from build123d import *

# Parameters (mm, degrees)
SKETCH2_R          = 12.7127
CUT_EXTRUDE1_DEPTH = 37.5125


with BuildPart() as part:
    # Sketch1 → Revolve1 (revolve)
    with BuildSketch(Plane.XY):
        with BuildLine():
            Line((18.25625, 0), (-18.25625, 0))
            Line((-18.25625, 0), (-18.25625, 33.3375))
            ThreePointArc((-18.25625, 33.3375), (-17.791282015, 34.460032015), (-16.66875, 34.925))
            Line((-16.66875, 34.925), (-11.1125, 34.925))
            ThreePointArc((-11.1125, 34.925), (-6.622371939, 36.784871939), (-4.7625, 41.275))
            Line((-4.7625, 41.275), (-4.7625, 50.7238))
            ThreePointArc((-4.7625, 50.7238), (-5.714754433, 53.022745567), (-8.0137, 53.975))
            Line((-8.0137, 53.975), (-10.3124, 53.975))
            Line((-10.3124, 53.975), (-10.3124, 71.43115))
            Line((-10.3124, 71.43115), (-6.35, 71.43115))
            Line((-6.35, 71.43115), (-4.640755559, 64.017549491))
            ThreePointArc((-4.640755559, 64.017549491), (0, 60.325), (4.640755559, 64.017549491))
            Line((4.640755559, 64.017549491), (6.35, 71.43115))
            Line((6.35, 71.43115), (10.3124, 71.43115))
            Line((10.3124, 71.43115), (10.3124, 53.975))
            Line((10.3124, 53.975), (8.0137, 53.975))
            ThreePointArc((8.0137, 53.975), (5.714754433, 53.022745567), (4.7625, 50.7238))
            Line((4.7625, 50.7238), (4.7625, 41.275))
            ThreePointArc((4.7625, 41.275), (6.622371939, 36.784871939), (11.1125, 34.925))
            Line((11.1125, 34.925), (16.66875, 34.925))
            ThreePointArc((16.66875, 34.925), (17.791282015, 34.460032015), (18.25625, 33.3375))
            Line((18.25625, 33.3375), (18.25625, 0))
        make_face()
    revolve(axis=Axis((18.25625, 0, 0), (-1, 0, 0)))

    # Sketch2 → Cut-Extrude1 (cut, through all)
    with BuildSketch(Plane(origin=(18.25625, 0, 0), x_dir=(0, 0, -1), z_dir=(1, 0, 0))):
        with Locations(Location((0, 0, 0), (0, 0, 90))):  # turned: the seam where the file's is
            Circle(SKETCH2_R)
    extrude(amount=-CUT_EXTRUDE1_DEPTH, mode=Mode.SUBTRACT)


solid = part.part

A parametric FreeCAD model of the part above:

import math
import FreeCAD as App
import Part
import Sketcher
Q = App.Units.Quantity

doc = App.newDocument("Part")
body = doc.addObject("PartDesign::Body", "Body")

# Sketch on XY plane
sketch1 = body.newObject("Sketcher::SketchObject", "Sketch")
sketch1.AttachmentSupport = (doc.getObject("XY_Plane"), [""])
sketch1.MapMode = "FlatFace"
sketch1.addGeometry(Part.LineSegment(App.Vector(-18.3, 0, 0), App.Vector(18.3, 0, 0)), False)
sketch1.addGeometry(Part.LineSegment(App.Vector(18.3, 0, 0), App.Vector(18.3, 33.3, 0)), False)
sketch1.addGeometry(Part.ArcOfCircle(Part.Circle(App.Vector(16.7, 33.3, 0), App.Vector(0, 0, 1), 1.6), math.radians(0), math.radians(90)), False)
sketch1.addGeometry(Part.LineSegment(App.Vector(16.7, 34.9, 0), App.Vector(11.1, 34.9, 0)), False)
sketch1.addGeometry(Part.ArcOfCircle(Part.Circle(App.Vector(11.1, 41.3, 0), App.Vector(0, 0, 1), 6.3), math.radians(180), math.radians(270)), False)
sketch1.addGeometry(Part.LineSegment(App.Vector(4.8, 41.3, 0), App.Vector(4.8, 50.7, 0)), False)
sketch1.addGeometry(Part.ArcOfCircle(Part.Circle(App.Vector(8, 50.7, 0), App.Vector(0, 0, 1), 3.3), math.radians(90), math.radians(180)), False)
sketch1.addGeometry(Part.LineSegment(App.Vector(8, 54, 0), App.Vector(10.3, 54, 0)), False)
sketch1.addGeometry(Part.LineSegment(App.Vector(10.3, 54, 0), App.Vector(10.3, 71.4, 0)), False)
sketch1.addGeometry(Part.LineSegment(App.Vector(10.3, 71.4, 0), App.Vector(6.3, 71.4, 0)), False)
sketch1.addGeometry(Part.LineSegment(App.Vector(6.3, 71.4, 0), App.Vector(4.6, 64, 0)), False)
sketch1.addGeometry(Part.ArcOfCircle(Part.Circle(App.Vector(0, 65.1, 0), App.Vector(0, 0, 1), 4.8), math.radians(-167), math.radians(-13)), False)
sketch1.addGeometry(Part.LineSegment(App.Vector(-4.6, 64, 0), App.Vector(-6.3, 71.4, 0)), False)
sketch1.addGeometry(Part.LineSegment(App.Vector(-6.3, 71.4, 0), App.Vector(-10.3, 71.4, 0)), False)
sketch1.addGeometry(Part.LineSegment(App.Vector(-10.3, 71.4, 0), App.Vector(-10.3, 54, 0)), False)
sketch1.addGeometry(Part.LineSegment(App.Vector(-10.3, 54, 0), App.Vector(-8, 54, 0)), False)
sketch1.addGeometry(Part.ArcOfCircle(Part.Circle(App.Vector(-8, 50.7, 0), App.Vector(0, 0, 1), 3.3), math.radians(0), math.radians(90)), False)
sketch1.addGeometry(Part.LineSegment(App.Vector(-4.8, 50.7, 0), App.Vector(-4.8, 41.3, 0)), False)
sketch1.addGeometry(Part.ArcOfCircle(Part.Circle(App.Vector(-11.1, 41.3, 0), App.Vector(0, 0, 1), 6.3), math.radians(-90), math.radians(0)), False)
sketch1.addGeometry(Part.LineSegment(App.Vector(-11.1, 34.9, 0), App.Vector(-16.7, 34.9, 0)), False)
sketch1.addGeometry(Part.ArcOfCircle(Part.Circle(App.Vector(-16.7, 33.3, 0), App.Vector(0, 0, 1), 1.6), math.radians(90), math.radians(180)), False)
sketch1.addGeometry(Part.LineSegment(App.Vector(-18.3, 33.3, 0), App.Vector(-18.3, 0, 0)), False)
sketch1.addConstraint(Sketcher.Constraint("Coincident", 0, 2, 1, 1))
sketch1.addConstraint(Sketcher.Constraint("Tangent", 1, 2, 2, 1))
sketch1.addConstraint(Sketcher.Constraint("Tangent", 2, 2, 3, 1))
sketch1.addConstraint(Sketcher.Constraint("Tangent", 3, 2, 4, 2))
sketch1.addConstraint(Sketcher.Constraint("Tangent", 4, 1, 5, 1))
sketch1.addConstraint(Sketcher.Constraint("Tangent", 5, 2, 6, 2))
sketch1.addConstraint(Sketcher.Constraint("Tangent", 6, 1, 7, 1))
sketch1.addConstraint(Sketcher.Constraint("Coincident", 7, 2, 8, 1))
sketch1.addConstraint(Sketcher.Constraint("Coincident", 8, 2, 9, 1))
sketch1.addConstraint(Sketcher.Constraint("Coincident", 9, 2, 10, 1))
sketch1.addConstraint(Sketcher.Constraint("Tangent", 10, 2, 11, 2))
sketch1.addConstraint(Sketcher.Constraint("Tangent", 11, 1, 12, 1))
sketch1.addConstraint(Sketcher.Constraint("Coincident", 12, 2, 13, 1))
sketch1.addConstraint(Sketcher.Constraint("Coincident", 13, 2, 14, 1))
sketch1.addConstraint(Sketcher.Constraint("Coincident", 14, 2, 15, 1))
sketch1.addConstraint(Sketcher.Constraint("Tangent", 15, 2, 16, 2))
sketch1.addConstraint(Sketcher.Constraint("Tangent", 16, 1, 17, 1))
sketch1.addConstraint(Sketcher.Constraint("Tangent", 17, 2, 18, 2))
sketch1.addConstraint(Sketcher.Constraint("Tangent", 18, 1, 19, 1))
sketch1.addConstraint(Sketcher.Constraint("Tangent", 19, 2, 20, 1))
sketch1.addConstraint(Sketcher.Constraint("Tangent", 20, 2, 21, 1))
sketch1.addConstraint(Sketcher.Constraint("Coincident", 21, 2, 0, 1))
sketch1.addConstraint(Sketcher.Constraint("Horizontal", 0))
sketch1.addConstraint(Sketcher.Constraint("Vertical", 1))
sketch1.addConstraint(Sketcher.Constraint("Horizontal", 3))
sketch1.addConstraint(Sketcher.Constraint("Vertical", 5))
sketch1.addConstraint(Sketcher.Constraint("Horizontal", 7))
sketch1.addConstraint(Sketcher.Constraint("Vertical", 8))
sketch1.addConstraint(Sketcher.Constraint("Horizontal", 9))
sketch1.addConstraint(Sketcher.Constraint("Horizontal", 13))
sketch1.addConstraint(Sketcher.Constraint("Vertical", 14))
sketch1.addConstraint(Sketcher.Constraint("Horizontal", 15))
sketch1.addConstraint(Sketcher.Constraint("Vertical", 17))
sketch1.addConstraint(Sketcher.Constraint("Horizontal", 19))
sketch1.addConstraint(Sketcher.Constraint("Vertical", 21))
sketch1.addConstraint(Sketcher.Constraint("Equal", 6, 16))
sketch1.addConstraint(Sketcher.Constraint("Equal", 4, 18))
sketch1.addConstraint(Sketcher.Constraint("Equal", 2, 20))
sketch1.addConstraint(Sketcher.Constraint("Symmetric", 0, 2, 21, 2, -1, 1))
sketch1.addConstraint(Sketcher.Constraint("Symmetric", 6, 3, 16, 3, -2))
sketch1.addConstraint(Sketcher.Constraint("Symmetric", 10, 2, 11, 1, -2))
sketch1.addConstraint(Sketcher.Constraint("Symmetric", 8, 2, 13, 2, -2))
sketch1.addConstraint(Sketcher.Constraint("Horizontal", 4, 3, 18, 3))
sketch1.addConstraint(Sketcher.Constraint("Radius", 4, Q("0.25 in")))
sketch1.addConstraint(Sketcher.Constraint("Radius", 2, Q("0.0625 in")))
sketch1.addConstraint(Sketcher.Constraint("Radius", 6, Q("0.128 in")))
sketch1.addConstraint(Sketcher.Constraint("Radius", 11, Q("0.1875 in")))
sketch1.addConstraint(Sketcher.Constraint("DistanceY", 4, 3, 6, 1, Q("0.5 in")))
sketch1.addConstraint(Sketcher.Constraint("DistanceX", 12, 2, 9, 2, Q("0.5 in")))
sketch1.addConstraint(Sketcher.Constraint("DistanceX", 0, 1, 0, 2, Q("1.4375 in")))
sketch1.addConstraint(Sketcher.Constraint("DistanceX", 3, 2, 3, 1, Q("0.21875 in")))
sketch1.addConstraint(Sketcher.Constraint("DistanceX", 9, 2, 9, 1, Q("0.156 in")))
sketch1.addConstraint(Sketcher.Constraint("DistanceY", 1, 1, 1, 2, Q("1.3125 in")))
sketch1.addConstraint(Sketcher.Constraint("DistanceY", 2, 3, 11, 3, Q("1.25 in")))
sketch1.addConstraint(Sketcher.Constraint("DistanceY", 8, 1, 8, 2, Q("17.45615 mm")))
revolution = body.newObject("PartDesign::Revolution", "Revolution")
revolution.Profile = sketch1
revolution.ReferenceAxis = (sketch1, ["H_Axis"])
revolution.Angle = 360

# Sketch on YZ plane
sketch2 = body.newObject("Sketcher::SketchObject", "Sketch001")
sketch2.AttachmentSupport = (doc.getObject("YZ_Plane"), [""])
sketch2.MapMode = "FlatFace"
sketch2.AttachmentOffset = App.Placement(App.Vector(0, 0, 0.71875 * 25.4), App.Rotation())
sketch2.addGeometry(Part.Circle(App.Vector(0, 0, 0), App.Vector(0, 0, 1), 13), False)
sketch2.addConstraint(Sketcher.Constraint("Coincident", 0, 3, -1, 1))
sketch2.addConstraint(Sketcher.Constraint("Diameter", 0, Q("1.001 in")))
pocket1 = body.newObject("PartDesign::Pocket", "Pocket")
pocket1.Profile = sketch2
pocket1.Type = "ThroughAll"

doc.recompute()
